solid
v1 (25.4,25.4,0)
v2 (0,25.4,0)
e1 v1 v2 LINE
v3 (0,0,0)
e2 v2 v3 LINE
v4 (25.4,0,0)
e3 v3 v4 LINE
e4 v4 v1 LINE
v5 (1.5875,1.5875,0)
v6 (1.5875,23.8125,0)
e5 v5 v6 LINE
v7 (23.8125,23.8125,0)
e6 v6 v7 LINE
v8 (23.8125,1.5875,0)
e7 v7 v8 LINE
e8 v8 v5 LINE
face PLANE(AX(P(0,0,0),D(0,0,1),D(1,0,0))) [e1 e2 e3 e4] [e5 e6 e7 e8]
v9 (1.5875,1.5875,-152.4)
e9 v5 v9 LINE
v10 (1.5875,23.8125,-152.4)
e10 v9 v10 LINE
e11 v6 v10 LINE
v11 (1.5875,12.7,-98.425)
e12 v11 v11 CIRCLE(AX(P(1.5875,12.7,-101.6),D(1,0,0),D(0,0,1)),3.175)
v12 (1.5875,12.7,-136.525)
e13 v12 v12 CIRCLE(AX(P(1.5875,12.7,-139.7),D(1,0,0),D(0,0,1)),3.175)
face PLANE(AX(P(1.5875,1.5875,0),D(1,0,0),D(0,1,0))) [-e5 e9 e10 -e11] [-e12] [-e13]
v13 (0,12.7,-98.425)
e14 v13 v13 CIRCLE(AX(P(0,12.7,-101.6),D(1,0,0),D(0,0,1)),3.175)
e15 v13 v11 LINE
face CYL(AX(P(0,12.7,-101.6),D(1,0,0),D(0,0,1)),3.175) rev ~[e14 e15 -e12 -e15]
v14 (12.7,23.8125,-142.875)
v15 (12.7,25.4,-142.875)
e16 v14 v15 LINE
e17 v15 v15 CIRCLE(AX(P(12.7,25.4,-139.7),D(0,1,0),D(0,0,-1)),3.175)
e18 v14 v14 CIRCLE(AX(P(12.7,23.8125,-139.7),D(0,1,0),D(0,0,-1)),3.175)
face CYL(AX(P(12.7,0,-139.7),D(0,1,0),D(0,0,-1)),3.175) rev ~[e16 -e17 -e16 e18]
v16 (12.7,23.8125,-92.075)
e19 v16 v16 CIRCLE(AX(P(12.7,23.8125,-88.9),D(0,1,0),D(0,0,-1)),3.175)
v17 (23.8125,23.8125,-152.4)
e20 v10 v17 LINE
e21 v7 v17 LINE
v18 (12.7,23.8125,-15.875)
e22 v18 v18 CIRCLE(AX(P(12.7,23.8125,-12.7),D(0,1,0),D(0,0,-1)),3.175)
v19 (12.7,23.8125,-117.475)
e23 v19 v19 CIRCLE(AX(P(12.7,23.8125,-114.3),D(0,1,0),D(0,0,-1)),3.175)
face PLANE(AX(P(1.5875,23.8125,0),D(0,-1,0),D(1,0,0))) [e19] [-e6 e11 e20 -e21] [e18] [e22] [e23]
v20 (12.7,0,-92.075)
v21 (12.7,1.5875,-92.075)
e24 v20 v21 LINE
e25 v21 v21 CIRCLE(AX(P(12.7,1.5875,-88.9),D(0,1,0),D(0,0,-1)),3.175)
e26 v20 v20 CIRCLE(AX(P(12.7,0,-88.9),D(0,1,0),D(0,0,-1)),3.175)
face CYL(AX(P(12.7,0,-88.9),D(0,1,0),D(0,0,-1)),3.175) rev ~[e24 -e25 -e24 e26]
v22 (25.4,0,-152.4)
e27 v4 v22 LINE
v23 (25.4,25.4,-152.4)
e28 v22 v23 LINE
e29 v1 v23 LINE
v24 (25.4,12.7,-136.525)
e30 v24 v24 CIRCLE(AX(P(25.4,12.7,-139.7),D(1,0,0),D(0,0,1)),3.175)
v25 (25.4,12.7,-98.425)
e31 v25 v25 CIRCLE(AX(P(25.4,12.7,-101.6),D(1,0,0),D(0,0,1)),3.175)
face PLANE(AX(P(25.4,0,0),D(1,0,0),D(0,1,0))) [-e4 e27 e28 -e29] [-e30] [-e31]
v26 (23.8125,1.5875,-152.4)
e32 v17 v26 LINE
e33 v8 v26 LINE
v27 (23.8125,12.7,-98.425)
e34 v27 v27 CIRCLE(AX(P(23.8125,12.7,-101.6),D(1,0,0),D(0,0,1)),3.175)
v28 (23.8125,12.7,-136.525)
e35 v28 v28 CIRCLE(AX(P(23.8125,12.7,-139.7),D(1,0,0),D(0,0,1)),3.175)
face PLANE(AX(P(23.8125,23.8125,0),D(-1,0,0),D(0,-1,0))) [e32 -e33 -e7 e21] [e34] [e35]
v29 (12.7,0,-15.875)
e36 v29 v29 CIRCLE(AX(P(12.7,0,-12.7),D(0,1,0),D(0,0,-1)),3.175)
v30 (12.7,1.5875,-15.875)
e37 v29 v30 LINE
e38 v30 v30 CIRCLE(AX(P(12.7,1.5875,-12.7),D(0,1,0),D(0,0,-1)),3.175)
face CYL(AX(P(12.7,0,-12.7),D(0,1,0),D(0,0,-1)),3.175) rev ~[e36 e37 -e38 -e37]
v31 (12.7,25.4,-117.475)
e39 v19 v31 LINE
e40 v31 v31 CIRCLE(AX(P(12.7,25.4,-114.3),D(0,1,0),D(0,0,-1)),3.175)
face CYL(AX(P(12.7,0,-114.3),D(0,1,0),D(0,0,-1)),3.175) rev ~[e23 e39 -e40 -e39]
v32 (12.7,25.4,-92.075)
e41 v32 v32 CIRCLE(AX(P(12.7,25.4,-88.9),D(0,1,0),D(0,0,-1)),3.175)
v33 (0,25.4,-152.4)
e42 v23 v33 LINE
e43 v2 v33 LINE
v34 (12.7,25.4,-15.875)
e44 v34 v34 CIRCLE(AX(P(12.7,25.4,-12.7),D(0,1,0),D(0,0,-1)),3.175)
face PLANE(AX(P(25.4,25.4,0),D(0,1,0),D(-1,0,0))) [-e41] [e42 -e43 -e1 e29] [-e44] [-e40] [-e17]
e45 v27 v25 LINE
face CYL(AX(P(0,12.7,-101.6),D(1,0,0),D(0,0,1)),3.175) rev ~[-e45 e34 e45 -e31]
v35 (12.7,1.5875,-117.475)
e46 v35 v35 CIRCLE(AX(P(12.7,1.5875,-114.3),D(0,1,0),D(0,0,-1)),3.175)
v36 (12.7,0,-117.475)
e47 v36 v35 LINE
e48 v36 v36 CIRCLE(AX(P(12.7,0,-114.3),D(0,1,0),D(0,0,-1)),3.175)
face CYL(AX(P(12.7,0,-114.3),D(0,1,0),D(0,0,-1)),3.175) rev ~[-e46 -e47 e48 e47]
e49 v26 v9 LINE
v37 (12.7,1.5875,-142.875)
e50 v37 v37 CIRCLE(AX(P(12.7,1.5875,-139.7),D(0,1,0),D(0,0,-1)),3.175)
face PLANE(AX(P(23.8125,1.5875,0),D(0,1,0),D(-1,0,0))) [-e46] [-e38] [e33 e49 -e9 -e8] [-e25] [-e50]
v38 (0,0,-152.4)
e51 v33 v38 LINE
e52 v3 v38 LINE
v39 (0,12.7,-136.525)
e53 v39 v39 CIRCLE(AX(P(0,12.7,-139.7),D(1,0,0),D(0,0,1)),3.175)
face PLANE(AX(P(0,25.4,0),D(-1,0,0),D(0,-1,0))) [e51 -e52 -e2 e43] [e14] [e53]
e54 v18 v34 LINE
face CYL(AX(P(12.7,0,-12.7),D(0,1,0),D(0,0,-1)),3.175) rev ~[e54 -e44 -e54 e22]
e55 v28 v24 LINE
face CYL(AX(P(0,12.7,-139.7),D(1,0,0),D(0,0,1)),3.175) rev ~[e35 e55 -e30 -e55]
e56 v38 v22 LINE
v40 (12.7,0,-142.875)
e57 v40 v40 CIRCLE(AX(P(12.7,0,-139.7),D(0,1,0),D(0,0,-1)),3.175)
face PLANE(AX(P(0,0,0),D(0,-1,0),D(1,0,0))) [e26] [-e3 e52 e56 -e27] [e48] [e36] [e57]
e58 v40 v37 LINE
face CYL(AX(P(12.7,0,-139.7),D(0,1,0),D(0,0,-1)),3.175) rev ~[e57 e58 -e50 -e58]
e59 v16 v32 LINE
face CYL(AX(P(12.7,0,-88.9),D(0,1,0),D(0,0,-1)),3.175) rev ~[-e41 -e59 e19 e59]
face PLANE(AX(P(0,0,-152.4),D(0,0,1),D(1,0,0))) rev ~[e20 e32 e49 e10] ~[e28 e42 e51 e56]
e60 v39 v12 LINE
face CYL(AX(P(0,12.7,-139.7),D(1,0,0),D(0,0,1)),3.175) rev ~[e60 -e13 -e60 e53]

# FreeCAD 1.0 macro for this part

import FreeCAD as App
import Part
import Sketcher

V = App.Vector
Q = App.Units.Quantity


def add_polygon(sketch, points):
    """Adds a closed chain of lines whose ends are joined by coincident constraints."""
    first, n = sketch.GeometryCount, len(points)
    for a, b in zip(points, points[1:] + points[:1]):
        sketch.addGeometry(Part.LineSegment(App.Vector(*a, 0), App.Vector(*b, 0)), False)
    for i in range(n):
        sketch.addConstraint(Sketcher.Constraint("Coincident", first + i, 2, first + (i + 1) % n, 1))

doc = App.newDocument("Part")
params = doc.addObject("Spreadsheet::Sheet", "Params")
for row, (alias, value) in enumerate([
    ("sketch1_width", "1 in"),
    ("pad1_length", "6 in"),
    ("sketch2_diameter", "0.25 in"),
    ("hole_diameter", "0.25 in"),
    ("hole_depth", "1 in"),
    ("sketch3_diameter", "0.25 in"),
    ("hole2_diameter", "0.25 in"),
    ("hole2_depth", "1 in"),
], start=1):
    params.set(f"A{row}", alias)
    params.set(f"B{row}", "=" + value)
    params.setAlias(f"B{row}", alias)

body = doc.addObject("PartDesign::Body", "Body")

# Sketch on XY plane
sketch1 = body.newObject("Sketcher::SketchObject", "Sketch")
sketch1.AttachmentSupport = (doc.getObject("XY_Plane"), [""])
sketch1.MapMode = "FlatFace"
add_polygon(sketch1, [(0, 25), (0, 0), (25, 0), (25, 25)])  # lines 0-3
add_polygon(sketch1, [(2, 2), (2, 24), (24, 24), (24, 2)])  # lines 4-7
sketch1.addConstraint([
    Sketcher.Constraint("Vertical", 0),
    Sketcher.Constraint("Horizontal", 1),
    Sketcher.Constraint("Vertical", 2),
    Sketcher.Constraint("Horizontal", 3),
    Sketcher.Constraint("Vertical", 4),
    Sketcher.Constraint("Horizontal", 5),
    Sketcher.Constraint("Vertical", 6),
    Sketcher.Constraint("Horizontal", 7),
    Sketcher.Constraint("Coincident", 0, 2, -1, 1),
    Sketcher.Constraint("Equal", 3, 0),
    Sketcher.Constraint("Equal", 7, 4),
    Sketcher.Constraint("DistanceX", 1, 1, 1, 2, Q("1 in")),
    Sketcher.Constraint("DistanceX", -1, 1, 4, 2, Q("0.0625 in")),
    Sketcher.Constraint("DistanceY", -1, 1, 6, 2, Q("0.0625 in")),
    Sketcher.Constraint("DistanceY", 4, 2, 3, 2, Q("0.0625 in")),
])
sketch1.setExpression("Constraints[19]", "Params.sketch1_width")
pad1 = body.newObject("PartDesign::Pad", "Pad")
pad1.Profile = sketch1
pad1.setExpression("Length", "Params.pad1_length")
pad1.Reversed = True

# Sketch on XZ plane
sketch2 = body.newObject("Sketcher::SketchObject", "Sketch001")
sketch2.AttachmentSupport = (doc.getObject("XZ_Plane"), [""])
sketch2.MapMode = "FlatFace"
sketch2.addGeometry([
    Part.Circle(V(12.7, -12.7, 0), V(0, 0, 1), 3.2),
    Part.Circle(V(12.7, -139.7, 0), V(0, 0, 1), 3.2),
    Part.Circle(V(12.7, -114.3, 0), V(0, 0, 1), 3.2),
    Part.Circle(V(12.7, -88.9, 0), V(0, 0, 1), 3.2),
], False)
sketch2.addConstraint([
    Sketcher.Constraint("Equal", 0, 1),
    Sketcher.Constraint("Equal", 1, 2),
    Sketcher.Constraint("Equal", 2, 3),
    Sketcher.Constraint("Vertical", 0, 3, 1, 3),
    Sketcher.Constraint("Vertical", 1, 3, 2, 3),
    Sketcher.Constraint("Vertical", 2, 3, 3, 3),
    Sketcher.Constraint("Diameter", 0, Q("0.25 in")),
    Sketcher.Constraint("DistanceY", 1, 3, 0, 3, Q("5 in")),
    Sketcher.Constraint("DistanceY", 1, 3, 2, 3, Q("1 in")),
    Sketcher.Constraint("DistanceY", 2, 3, 3, 3, Q("1 in")),
    Sketcher.Constraint("DistanceX", -1, 1, 0, 3, Q("0.5 in")),
    Sketcher.Constraint("DistanceY", 0, 3, -1, 1, Q("0.5 in")),
])
sketch2.setExpression("Constraints[6]", "Params.sketch2_diameter")
doc.recompute()
hole = body.newObject("PartDesign::Hole", "Hole")
hole.Profile = sketch2
hole.ThreadType = "None"
hole.setExpression("Diameter", "Params.hole_diameter")
hole.DepthType = "Dimension"
hole.setExpression("Depth", "Params.hole_depth")
hole.DrillPoint = "Angled"
hole.DrillPointAngle = 118

# Sketch on YZ plane
sketch3 = body.newObject("Sketcher::SketchObject", "Sketch002")
sketch3.AttachmentSupport = (doc.getObject("YZ_Plane"), [""])
sketch3.MapMode = "FlatFace"
sketch3.addGeometry([
    Part.Circle(V(12.7, -139.7, 0), V(0, 0, 1), 3.2),
    Part.Circle(V(12.7, -101.6, 0), V(0, 0, 1), 3.2),
], False)
sketch3.addConstraint([
    Sketcher.Constraint("Equal", 0, 1),
    Sketcher.Constraint("Vertical", 0, 3, 1, 3),
    Sketcher.Constraint("Diameter", 0, Q("0.25 in")),
    Sketcher.Constraint("DistanceY", 1, 3, -1, 1, Q("4 in")),
    Sketcher.Constraint("DistanceX", -1, 1, 0, 3, Q("0.5 in")),
    Sketcher.Constraint("DistanceY", 0, 3, -1, 1, Q("5.5 in")),
])
sketch3.setExpression("Constraints[2]", "Params.sketch3_diameter")
doc.recompute()
hole2 = body.newObject("PartDesign::Hole", "Hole001")
hole2.Profile = sketch3
hole2.ThreadType = "None"
hole2.setExpression("Diameter", "Params.hole2_diameter")
hole2.DepthType = "Dimension"
hole2.setExpression("Depth", "Params.hole2_depth")
hole2.DrillPoint = "Angled"
hole2.DrillPointAngle = 118
hole2.Reversed = True

doc.recompute()
